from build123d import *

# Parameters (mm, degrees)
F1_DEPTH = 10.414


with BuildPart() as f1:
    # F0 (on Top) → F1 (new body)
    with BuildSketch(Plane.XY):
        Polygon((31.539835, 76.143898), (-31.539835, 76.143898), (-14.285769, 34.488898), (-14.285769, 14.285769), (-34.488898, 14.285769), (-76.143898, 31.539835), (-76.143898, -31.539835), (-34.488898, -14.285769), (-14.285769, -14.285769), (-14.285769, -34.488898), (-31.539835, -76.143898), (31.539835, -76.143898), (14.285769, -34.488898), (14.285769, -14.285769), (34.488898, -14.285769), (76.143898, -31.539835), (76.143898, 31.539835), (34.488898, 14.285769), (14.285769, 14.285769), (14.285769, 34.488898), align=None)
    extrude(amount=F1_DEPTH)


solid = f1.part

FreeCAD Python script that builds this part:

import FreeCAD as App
import Part
import Sketcher

V = App.Vector
Q = App.Units.Quantity

doc = App.newDocument("Part")
body = doc.addObject("PartDesign::Body", "Body")

sketch1 = doc.addObject("Sketcher::SketchObject", "Sketch")
body.addObject(sketch1)
sketch1.AttachmentSupport = (doc.XY_Plane, [""])
sketch1.MapMode = "FlatFace"
sketch1.addGeometry([
    Part.LineSegment(V(32, 76, 0), V(-32, 76, 0)),
    Part.LineSegment(V(-32, 76, 0), V(-14, 34, 0)),
    Part.LineSegment(V(-14, 34, 0), V(-14, 14, 0)),
    Part.LineSegment(V(-14, 14, 0), V(-34, 14, 0)),
    Part.LineSegment(V(-34, 14, 0), V(-76, 32, 0)),
    Part.LineSegment(V(-76, 32, 0), V(-76, -32, 0)),
    Part.LineSegment(V(-76, -32, 0), V(-34, -14, 0)),
    Part.LineSegment(V(-34, -14, 0), V(-14, -14, 0)),
    Part.LineSegment(V(-14, -14, 0), V(-14, -34, 0)),
    Part.LineSegment(V(-14, -34, 0), V(-32, -76, 0)),
    Part.LineSegment(V(-32, -76, 0), V(32, -76, 0)),
    Part.LineSegment(V(32, -76, 0), V(14, -34, 0)),
    Part.LineSegment(V(14, -34, 0), V(14, -14, 0)),
    Part.LineSegment(V(14, -14, 0), V(34, -14, 0)),
    Part.LineSegment(V(34, -14, 0), V(76, -32, 0)),
    Part.LineSegment(V(76, -32, 0), V(76, 32, 0)),
    Part.LineSegment(V(76, 32, 0), V(34, 14, 0)),
    Part.LineSegment(V(34, 14, 0), V(14, 14, 0)),
    Part.LineSegment(V(14, 14, 0), V(14, 34, 0)),
    Part.LineSegment(V(14, 34, 0), V(32, 76, 0)),
], False)
sketch1.addConstraint([
    Sketcher.Constraint("Coincident", 0, 2, 1, 1),
    Sketcher.Constraint("Coincident", 1, 2, 2, 1),
    Sketcher.Constraint("Coincident", 2, 2, 3, 1),
    Sketcher.Constraint("Coincident", 3, 2, 4, 1),
    Sketcher.Constraint("Coincident", 4, 2, 5, 1),
    Sketcher.Constraint("Coincident", 5, 2, 6, 1),
    Sketcher.Constraint("Coincident", 6, 2, 7, 1),
    Sketcher.Constraint("Coincident", 7, 2, 8, 1),
    Sketcher.Constraint("Coincident", 8, 2, 9, 1),
    Sketcher.Constraint("Coincident", 9, 2, 10, 1),
    Sketcher.Constraint("Coincident", 10, 2, 11, 1),
    Sketcher.Constraint("Coincident", 11, 2, 12, 1),
    Sketcher.Constraint("Coincident", 12, 2, 13, 1),
    Sketcher.Constraint("Coincident", 13, 2, 14, 1),
    Sketcher.Constraint("Coincident", 14, 2, 15, 1),
    Sketcher.Constraint("Coincident", 15, 2, 16, 1),
    Sketcher.Constraint("Coincident", 16, 2, 17, 1),
    Sketcher.Constraint("Coincident", 17, 2, 18, 1),
    Sketcher.Constraint("Coincident", 18, 2, 19, 1),
    Sketcher.Constraint("Coincident", 19, 2, 0, 1),
    Sketcher.Constraint("Horizontal", 0),
    Sketcher.Constraint("Vertical", 2),
    Sketcher.Constraint("Horizontal", 3),
    Sketcher.Constraint("Vertical", 5),
    Sketcher.Constraint("Horizontal", 7),
    Sketcher.Constraint("Vertical", 8),
    Sketcher.Constraint("Horizontal", 10),
    Sketcher.Constraint("Vertical", 12),
    Sketcher.Constraint("Horizontal", 13),
    Sketcher.Constraint("Vertical", 15),
    Sketcher.Constraint("Horizontal", 17),
    Sketcher.Constraint("Vertical", 18),
    Sketcher.Constraint("Symmetric", 0, 2, 10, 2, -1, 1),
    Sketcher.Constraint("Symmetric", 1, 2, 11, 2, -1, 1),
    Sketcher.Constraint("Symmetric", 3, 2, 13, 2, -1, 1),
    Sketcher.Constraint("Symmetric", 4, 2, 14, 2, -1, 1),
    Sketcher.Constraint("Symmetric", 6, 2, 16, 2, -1, 1),
    Sketcher.Constraint("Symmetric", 8, 2, 18, 2, -1, 1),
    Sketcher.Constraint("Symmetric", 8, 2, 11, 2, -2),
    Sketcher.Constraint("Symmetric", 6, 2, 13, 2, -2),
    Sketcher.Constraint("Perpendicular", 1, 6),
    Sketcher.Constraint("Perpendicular", 4, 9),
    Sketcher.Constraint("Perpendicular", 11, 16),
    Sketcher.Constraint("Perpendicular", 14, 19),
    Sketcher.Constraint("Horizontal", 5, 2, 14, 2),
    Sketcher.Constraint("Equal", 17, 2),
    Sketcher.Constraint("Equal", 10, 5),
    Sketcher.Constraint("Equal", 1, 4),
    Sketcher.Constraint("Angle", 1, Q("-67.5 deg")),
    Sketcher.Constraint("DistanceX", 0, 2, 0, 1, 63.07967),
    Sketcher.Constraint("DistanceX", 3, 2, 3, 1, 20.203129),
    Sketcher.Constraint("DistanceY", 1, 2, 0, 2, 41.655),
])
pad1 = doc.addObject("PartDesign::Pad", "Pad")
body.addObject(pad1)
pad1.Profile = sketch1
pad1.Length = Q("0.41 in")

doc.recompute()
